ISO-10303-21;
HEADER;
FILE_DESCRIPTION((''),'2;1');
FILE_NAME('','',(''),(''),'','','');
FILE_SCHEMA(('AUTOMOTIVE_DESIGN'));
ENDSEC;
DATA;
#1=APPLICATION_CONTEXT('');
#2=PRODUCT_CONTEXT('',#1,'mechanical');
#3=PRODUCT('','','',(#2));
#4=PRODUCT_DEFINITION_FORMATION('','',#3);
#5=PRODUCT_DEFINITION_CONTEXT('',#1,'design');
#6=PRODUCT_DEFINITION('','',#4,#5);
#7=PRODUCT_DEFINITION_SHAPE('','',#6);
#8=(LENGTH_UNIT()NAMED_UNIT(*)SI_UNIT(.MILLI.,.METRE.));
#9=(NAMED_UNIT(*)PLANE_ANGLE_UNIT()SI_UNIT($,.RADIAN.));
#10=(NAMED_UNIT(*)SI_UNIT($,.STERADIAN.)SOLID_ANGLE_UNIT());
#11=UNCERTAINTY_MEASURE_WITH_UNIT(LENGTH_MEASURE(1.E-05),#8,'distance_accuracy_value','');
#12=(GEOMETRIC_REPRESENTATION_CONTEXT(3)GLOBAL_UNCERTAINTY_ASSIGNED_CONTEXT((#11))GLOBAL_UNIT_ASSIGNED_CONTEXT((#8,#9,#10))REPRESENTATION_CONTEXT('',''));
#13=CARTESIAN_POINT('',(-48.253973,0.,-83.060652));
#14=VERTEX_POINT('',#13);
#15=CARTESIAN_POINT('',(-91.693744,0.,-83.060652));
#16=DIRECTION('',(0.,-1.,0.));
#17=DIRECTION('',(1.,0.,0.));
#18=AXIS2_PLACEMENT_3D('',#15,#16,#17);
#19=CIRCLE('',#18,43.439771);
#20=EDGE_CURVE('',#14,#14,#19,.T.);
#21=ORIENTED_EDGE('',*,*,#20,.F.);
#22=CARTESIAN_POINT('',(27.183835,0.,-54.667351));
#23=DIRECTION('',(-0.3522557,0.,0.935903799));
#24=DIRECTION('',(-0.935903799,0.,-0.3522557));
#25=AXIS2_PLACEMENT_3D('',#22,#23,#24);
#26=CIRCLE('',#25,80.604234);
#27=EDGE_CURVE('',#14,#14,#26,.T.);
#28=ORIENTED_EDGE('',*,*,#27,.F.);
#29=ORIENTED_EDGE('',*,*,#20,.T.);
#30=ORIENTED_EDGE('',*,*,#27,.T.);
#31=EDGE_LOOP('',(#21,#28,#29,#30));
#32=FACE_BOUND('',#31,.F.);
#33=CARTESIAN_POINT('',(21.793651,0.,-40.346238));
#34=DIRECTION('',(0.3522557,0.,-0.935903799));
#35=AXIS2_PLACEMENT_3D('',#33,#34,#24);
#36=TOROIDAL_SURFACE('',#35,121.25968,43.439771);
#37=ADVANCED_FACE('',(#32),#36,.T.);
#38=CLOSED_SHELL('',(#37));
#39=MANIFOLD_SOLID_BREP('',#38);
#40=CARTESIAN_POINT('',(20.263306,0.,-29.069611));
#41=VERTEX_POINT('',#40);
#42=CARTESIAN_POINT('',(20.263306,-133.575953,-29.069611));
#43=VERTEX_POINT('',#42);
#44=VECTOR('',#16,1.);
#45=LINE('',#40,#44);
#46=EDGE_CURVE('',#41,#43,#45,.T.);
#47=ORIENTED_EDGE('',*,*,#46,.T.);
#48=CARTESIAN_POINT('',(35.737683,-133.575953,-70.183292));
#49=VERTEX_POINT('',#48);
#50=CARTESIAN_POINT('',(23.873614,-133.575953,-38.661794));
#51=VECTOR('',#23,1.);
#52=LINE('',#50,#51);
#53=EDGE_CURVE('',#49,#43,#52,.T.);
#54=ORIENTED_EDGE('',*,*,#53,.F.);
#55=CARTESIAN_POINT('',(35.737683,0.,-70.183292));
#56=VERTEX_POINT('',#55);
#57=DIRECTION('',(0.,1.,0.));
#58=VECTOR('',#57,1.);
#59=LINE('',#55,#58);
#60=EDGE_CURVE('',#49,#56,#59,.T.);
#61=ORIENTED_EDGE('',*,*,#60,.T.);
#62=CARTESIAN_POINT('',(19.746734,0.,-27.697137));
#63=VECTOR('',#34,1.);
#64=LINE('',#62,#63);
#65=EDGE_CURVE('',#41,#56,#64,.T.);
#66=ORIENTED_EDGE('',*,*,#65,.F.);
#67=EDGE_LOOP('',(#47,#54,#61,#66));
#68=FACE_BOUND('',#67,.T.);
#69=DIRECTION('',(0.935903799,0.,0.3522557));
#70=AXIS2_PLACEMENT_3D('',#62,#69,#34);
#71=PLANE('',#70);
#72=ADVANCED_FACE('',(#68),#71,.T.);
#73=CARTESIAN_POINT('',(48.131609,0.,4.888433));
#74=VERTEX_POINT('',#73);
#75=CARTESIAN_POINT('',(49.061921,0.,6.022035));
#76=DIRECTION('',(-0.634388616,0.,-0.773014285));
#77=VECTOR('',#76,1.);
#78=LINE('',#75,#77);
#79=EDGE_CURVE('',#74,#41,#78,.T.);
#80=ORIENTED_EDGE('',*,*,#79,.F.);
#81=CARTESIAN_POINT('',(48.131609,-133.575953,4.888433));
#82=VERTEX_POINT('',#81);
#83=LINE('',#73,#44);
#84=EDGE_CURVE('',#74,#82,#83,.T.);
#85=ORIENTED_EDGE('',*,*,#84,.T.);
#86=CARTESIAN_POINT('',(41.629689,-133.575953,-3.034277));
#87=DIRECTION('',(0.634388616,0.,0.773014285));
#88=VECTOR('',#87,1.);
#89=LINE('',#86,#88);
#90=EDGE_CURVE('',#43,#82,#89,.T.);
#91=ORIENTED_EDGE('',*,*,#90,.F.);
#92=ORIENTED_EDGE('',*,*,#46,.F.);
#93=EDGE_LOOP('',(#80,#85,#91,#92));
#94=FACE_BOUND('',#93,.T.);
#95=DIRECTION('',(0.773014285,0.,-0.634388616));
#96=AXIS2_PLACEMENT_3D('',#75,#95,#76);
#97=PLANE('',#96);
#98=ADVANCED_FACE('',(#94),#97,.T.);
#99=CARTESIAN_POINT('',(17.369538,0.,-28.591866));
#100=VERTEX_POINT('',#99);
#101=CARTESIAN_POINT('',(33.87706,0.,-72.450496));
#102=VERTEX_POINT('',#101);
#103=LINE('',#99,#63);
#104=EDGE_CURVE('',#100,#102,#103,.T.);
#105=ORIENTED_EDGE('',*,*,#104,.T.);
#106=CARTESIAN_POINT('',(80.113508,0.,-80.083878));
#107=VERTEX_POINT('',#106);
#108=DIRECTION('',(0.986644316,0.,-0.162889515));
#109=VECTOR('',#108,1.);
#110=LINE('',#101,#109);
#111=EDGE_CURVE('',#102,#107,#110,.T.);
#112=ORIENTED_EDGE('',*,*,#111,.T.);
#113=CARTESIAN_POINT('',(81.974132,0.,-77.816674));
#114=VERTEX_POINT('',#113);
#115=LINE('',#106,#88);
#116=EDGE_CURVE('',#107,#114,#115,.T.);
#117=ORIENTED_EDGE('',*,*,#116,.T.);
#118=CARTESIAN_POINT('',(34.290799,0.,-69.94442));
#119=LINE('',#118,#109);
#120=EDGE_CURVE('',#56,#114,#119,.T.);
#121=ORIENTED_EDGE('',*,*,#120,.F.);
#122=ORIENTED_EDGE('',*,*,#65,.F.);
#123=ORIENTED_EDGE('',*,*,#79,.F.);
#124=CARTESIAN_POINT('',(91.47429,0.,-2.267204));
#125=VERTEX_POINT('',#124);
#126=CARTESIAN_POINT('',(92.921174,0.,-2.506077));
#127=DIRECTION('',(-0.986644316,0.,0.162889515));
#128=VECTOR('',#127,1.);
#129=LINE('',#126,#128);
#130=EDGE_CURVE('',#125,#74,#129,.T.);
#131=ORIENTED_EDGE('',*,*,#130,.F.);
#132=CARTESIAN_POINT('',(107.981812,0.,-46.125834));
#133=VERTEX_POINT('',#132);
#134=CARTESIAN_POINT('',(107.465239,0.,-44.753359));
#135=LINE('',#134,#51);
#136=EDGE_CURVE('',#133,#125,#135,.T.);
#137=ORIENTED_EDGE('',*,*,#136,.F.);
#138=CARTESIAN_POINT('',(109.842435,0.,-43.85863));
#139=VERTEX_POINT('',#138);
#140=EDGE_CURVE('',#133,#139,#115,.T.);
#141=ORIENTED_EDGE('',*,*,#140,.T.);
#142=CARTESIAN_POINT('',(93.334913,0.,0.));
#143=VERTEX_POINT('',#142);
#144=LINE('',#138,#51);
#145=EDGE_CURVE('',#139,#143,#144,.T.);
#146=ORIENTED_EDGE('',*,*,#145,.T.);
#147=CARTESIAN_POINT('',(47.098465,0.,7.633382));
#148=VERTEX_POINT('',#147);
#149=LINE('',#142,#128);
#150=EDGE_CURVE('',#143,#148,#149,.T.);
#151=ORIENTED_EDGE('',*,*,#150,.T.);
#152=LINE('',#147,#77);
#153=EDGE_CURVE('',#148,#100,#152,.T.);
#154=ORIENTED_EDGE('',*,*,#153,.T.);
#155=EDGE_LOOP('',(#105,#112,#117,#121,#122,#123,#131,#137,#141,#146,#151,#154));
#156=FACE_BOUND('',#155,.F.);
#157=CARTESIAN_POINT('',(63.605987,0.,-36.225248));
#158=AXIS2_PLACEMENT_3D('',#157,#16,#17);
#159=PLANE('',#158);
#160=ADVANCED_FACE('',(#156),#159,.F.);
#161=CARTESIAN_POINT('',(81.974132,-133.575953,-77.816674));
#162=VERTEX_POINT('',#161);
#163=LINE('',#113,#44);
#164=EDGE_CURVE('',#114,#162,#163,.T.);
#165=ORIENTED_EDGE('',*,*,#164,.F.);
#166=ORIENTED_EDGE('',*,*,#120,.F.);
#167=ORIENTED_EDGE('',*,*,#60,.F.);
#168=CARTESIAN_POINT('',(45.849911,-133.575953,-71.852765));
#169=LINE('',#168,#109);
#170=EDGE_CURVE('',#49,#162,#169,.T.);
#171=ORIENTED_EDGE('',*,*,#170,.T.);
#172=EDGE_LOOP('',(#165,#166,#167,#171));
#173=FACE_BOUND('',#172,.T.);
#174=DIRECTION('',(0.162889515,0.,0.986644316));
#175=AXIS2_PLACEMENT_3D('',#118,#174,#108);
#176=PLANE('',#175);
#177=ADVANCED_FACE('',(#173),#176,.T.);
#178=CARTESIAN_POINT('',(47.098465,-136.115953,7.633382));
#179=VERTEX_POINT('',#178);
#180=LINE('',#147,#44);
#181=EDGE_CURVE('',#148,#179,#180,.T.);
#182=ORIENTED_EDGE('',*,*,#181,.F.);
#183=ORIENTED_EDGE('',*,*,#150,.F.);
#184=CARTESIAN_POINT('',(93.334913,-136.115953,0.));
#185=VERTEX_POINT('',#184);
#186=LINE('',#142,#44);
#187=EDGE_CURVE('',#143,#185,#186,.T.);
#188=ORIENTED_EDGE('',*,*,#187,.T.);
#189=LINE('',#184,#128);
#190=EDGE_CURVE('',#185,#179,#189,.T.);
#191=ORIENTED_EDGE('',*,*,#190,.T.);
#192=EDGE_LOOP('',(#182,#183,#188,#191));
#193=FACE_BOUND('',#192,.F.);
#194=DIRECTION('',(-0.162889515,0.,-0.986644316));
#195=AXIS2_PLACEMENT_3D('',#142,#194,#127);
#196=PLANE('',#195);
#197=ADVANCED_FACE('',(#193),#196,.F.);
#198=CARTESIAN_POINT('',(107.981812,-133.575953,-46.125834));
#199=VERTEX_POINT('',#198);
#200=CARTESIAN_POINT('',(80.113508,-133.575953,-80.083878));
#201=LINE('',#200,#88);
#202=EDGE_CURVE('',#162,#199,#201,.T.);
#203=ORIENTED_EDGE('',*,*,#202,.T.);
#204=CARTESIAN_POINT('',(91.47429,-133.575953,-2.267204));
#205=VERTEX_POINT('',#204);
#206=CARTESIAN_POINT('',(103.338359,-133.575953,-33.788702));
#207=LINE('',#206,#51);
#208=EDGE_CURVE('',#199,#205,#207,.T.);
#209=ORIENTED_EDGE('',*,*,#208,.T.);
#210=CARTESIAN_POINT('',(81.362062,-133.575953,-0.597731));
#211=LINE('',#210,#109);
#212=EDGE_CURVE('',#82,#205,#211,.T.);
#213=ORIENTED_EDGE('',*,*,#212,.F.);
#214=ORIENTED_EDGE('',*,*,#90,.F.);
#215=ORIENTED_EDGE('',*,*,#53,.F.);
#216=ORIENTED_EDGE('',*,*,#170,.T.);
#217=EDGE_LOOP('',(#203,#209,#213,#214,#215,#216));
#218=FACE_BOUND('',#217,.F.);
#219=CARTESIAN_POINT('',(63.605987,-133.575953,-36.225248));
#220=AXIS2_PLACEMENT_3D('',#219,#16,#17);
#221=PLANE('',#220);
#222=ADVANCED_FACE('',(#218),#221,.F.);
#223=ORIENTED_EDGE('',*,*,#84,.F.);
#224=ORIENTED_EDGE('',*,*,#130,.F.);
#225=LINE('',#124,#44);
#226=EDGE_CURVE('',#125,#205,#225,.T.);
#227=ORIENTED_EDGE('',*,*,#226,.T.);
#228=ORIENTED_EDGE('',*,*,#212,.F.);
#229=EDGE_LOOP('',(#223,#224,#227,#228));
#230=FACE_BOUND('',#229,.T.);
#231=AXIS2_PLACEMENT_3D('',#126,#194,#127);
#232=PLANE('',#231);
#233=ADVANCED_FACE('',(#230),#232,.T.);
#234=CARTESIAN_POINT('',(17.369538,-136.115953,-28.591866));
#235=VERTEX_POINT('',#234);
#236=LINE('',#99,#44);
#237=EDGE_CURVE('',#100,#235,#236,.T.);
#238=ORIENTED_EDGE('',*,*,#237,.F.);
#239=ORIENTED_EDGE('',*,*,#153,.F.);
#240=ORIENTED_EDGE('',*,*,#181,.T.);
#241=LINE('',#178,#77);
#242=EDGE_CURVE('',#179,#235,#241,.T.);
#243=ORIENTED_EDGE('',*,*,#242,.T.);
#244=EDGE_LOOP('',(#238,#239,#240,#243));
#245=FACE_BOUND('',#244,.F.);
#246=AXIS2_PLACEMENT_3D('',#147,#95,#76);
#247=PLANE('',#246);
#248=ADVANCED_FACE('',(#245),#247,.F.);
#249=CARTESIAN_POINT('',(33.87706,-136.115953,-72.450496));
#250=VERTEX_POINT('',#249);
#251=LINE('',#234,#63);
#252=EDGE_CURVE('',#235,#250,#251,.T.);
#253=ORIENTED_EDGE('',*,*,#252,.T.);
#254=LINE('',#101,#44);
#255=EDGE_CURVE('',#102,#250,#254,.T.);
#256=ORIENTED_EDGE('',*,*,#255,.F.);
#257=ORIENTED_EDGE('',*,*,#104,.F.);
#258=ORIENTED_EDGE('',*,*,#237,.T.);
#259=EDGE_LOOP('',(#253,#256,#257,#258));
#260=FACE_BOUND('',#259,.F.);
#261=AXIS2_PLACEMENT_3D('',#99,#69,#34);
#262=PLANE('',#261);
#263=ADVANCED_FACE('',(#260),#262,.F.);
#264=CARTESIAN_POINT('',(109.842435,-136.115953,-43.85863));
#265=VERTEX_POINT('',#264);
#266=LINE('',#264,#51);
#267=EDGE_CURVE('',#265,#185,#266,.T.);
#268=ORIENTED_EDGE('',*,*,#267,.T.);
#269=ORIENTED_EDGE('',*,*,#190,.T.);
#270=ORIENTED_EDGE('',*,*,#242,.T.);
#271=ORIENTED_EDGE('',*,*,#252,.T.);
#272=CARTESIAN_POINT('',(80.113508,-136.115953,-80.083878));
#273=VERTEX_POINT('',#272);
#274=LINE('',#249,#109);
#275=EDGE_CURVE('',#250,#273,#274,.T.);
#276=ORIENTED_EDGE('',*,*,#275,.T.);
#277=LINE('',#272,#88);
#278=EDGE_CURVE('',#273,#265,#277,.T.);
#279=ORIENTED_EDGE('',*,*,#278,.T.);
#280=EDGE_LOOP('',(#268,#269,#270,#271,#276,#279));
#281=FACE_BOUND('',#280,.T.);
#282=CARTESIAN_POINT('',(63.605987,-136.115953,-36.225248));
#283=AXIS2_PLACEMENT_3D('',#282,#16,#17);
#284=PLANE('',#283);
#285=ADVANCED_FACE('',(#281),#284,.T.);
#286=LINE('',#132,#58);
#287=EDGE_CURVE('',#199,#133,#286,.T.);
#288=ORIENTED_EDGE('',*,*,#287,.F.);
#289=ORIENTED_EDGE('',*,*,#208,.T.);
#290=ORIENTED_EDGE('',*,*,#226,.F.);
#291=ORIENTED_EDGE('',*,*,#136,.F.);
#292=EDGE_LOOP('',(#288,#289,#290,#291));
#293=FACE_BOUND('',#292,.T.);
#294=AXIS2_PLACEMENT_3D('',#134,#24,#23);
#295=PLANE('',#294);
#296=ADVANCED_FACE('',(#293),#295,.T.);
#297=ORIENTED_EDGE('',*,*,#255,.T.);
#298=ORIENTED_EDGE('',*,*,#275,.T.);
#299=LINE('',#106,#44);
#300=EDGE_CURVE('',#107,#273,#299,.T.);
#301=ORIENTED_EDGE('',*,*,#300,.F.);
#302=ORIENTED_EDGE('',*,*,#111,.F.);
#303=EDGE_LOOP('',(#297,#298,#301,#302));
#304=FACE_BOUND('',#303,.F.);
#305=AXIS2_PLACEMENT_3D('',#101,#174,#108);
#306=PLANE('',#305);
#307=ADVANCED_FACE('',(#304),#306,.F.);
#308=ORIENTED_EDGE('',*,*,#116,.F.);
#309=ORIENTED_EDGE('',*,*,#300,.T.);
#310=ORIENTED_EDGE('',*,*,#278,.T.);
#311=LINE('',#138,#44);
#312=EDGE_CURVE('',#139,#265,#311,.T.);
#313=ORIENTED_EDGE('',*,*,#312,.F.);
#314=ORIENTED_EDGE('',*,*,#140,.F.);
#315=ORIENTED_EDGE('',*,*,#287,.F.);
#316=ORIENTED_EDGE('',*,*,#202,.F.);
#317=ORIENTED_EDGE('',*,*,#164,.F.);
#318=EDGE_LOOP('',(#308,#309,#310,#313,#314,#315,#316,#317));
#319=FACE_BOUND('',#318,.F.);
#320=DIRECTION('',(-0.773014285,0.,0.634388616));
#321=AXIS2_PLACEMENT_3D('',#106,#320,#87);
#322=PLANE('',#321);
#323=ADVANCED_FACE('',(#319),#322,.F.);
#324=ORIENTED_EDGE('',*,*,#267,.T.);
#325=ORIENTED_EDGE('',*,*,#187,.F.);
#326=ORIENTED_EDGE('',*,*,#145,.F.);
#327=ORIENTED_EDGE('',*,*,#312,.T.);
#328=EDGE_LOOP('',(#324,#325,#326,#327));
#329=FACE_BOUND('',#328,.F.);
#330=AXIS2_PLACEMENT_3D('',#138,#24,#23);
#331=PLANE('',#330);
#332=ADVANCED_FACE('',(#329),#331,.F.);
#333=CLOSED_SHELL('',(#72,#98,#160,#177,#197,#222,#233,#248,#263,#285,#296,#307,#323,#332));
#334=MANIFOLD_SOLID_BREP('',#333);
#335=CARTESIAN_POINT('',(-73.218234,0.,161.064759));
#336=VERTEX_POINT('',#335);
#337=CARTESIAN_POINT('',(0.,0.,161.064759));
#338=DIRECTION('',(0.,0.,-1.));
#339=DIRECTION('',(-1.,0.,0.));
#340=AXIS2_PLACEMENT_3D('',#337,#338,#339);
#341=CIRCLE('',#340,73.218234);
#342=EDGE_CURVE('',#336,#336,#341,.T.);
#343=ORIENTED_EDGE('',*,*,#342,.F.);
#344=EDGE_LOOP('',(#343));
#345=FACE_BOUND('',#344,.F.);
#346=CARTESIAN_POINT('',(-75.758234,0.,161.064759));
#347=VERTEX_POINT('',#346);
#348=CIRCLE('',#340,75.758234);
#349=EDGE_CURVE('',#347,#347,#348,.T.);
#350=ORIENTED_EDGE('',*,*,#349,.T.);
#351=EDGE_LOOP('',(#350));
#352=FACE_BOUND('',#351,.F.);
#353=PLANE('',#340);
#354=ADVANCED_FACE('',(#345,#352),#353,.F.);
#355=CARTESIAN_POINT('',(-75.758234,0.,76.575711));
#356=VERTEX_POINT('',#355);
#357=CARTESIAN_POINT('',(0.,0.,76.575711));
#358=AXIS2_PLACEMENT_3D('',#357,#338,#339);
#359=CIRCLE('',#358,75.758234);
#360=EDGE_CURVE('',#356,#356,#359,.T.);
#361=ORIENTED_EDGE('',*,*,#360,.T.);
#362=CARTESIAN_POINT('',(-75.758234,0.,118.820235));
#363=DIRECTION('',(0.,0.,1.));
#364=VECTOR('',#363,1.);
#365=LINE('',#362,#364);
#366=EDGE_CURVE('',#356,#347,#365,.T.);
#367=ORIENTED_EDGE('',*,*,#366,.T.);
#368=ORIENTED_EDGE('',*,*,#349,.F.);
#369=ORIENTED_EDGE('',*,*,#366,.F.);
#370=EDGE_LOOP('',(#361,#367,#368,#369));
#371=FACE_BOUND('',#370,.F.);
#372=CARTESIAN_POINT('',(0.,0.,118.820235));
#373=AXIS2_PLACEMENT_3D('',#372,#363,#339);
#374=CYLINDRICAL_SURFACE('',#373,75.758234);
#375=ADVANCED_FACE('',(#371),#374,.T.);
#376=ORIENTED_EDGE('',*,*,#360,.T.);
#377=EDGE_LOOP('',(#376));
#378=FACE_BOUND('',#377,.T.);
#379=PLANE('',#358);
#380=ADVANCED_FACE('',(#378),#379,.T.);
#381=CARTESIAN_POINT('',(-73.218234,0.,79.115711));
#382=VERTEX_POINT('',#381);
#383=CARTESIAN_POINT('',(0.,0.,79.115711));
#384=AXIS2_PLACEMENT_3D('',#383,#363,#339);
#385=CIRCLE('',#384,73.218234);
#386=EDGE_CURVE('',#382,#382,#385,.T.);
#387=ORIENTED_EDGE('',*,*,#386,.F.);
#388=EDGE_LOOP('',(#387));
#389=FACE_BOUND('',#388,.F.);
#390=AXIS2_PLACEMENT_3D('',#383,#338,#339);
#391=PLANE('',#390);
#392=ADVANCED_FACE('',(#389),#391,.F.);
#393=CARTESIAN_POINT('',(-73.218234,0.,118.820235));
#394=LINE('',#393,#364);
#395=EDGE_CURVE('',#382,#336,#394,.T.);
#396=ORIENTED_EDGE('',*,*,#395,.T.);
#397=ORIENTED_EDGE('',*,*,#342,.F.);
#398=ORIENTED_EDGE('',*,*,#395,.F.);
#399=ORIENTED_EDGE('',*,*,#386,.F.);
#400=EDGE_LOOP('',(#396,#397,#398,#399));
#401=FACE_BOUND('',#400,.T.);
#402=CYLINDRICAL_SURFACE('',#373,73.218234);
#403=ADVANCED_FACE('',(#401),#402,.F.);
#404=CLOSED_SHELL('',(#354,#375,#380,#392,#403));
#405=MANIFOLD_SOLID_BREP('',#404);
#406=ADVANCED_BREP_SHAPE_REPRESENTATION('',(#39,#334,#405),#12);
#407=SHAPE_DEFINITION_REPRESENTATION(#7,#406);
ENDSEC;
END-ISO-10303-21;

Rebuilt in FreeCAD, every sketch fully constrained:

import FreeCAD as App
import Part
import Sketcher


def faces_at(feature, points):
    """Names of the faces that lie closest to the given points."""
    faces = feature.Shape.Faces
    near = lambda p: min(range(len(faces)), key=lambda i: faces[i].distToShape(Part.Vertex(*p))[0])
    return sorted({f"Face{near(p) + 1}" for p in points})

doc = App.newDocument("Part")
params = doc.addObject("Spreadsheet::Sheet", "Params")
for row, (alias, value) in enumerate([
    ("revolution_angle", "360 deg"),
    ("thickness_wall", "0.1 in"),
    ("pad1_length", "136.115953 mm"),
    ("thickness2_wall", "0.1 in"),
    ("revolution2_angle", "360 deg"),
], start=1):
    params.set(f"A{row}", alias)
    params.set(f"B{row}", "=" + value)
    params.setAlias(f"B{row}", alias)

body = doc.addObject("PartDesign::Body", "Body")

sketch1 = doc.addObject("Sketcher::SketchObject", "Sketch")
body.addObject(sketch1)
sketch1.AttachmentSupport = (doc.XZ_Plane, [""])
sketch1.MapMode = "FlatFace"
sketch1.addGeometry(Part.LineSegment(App.Vector(-76, 161, 0), App.Vector(-76, 77, 0)), False)
sketch1.addGeometry(Part.LineSegment(App.Vector(-76, 77, 0), App.Vector(0, 77, 0)), False)
sketch1.addGeometry(Part.LineSegment(App.Vector(0, 77, 0), App.Vector(0, 161, 0)), False)
sketch1.addGeometry(Part.LineSegment(App.Vector(0, 161, 0), App.Vector(-76, 161, 0)), False)
sketch1.addConstraint(Sketcher.Constraint("Coincident", 0, 2, 1, 1))
sketch1.addConstraint(Sketcher.Constraint("Coincident", 1, 2, 2, 1))
sketch1.addConstraint(Sketcher.Constraint("Coincident", 2, 2, 3, 1))
sketch1.addConstraint(Sketcher.Constraint("Coincident", 3, 2, 0, 1))
sketch1.addConstraint(Sketcher.Constraint("Vertical", 0))
sketch1.addConstraint(Sketcher.Constraint("Horizontal", 1))
sketch1.addConstraint(Sketcher.Constraint("Vertical", 2))
sketch1.addConstraint(Sketcher.Constraint("Horizontal", 3))
sketch1.addConstraint(Sketcher.Constraint("PointOnObject", 1, 2, -2))
sketch1.addConstraint(Sketcher.Constraint("DistanceX", 1, 1, 1, 2, 75.758234))
sketch1.addConstraint(Sketcher.Constraint("DistanceY", 0, 2, 0, 1, 84.489048))
sketch1.addConstraint(Sketcher.Constraint("DistanceY", -1, 1, 0, 2, 76.575711))
revolution = doc.addObject("PartDesign::Revolution", "Revolution")
body.addObject(revolution)
revolution.Profile = sketch1
revolution.ReferenceAxis = (sketch1, ["V_Axis"])
revolution.setExpression("Angle", "Params.revolution_angle")
doc.recompute()

thickness = doc.addObject("PartDesign::Thickness", "Thickness")
body.addObject(thickness)
thickness.Base = (revolution, faces_at(revolution, [(0, 0, 161.065)]))
thickness.setExpression("Value", "Params.thickness_wall")
thickness.Reversed = True
thickness.Join = "Arc"
body2 = doc.addObject("PartDesign::Body", "Body001")

sketch2 = doc.addObject("Sketcher::SketchObject", "Sketch001")
body2.addObject(sketch2)
sketch2.AttachmentSupport = (doc.getObject("XZ_Plane001"), [""])
sketch2.MapMode = "FlatFace"
sketch2.addGeometry(Part.LineSegment(App.Vector(110, -44, 0), App.Vector(93, 0, 0)), False)
sketch2.addGeometry(Part.LineSegment(App.Vector(93, 0, 0), App.Vector(47, 8, 0)), False)
sketch2.addGeometry(Part.LineSegment(App.Vector(47, 8, 0), App.Vector(17, -29, 0)), False)
sketch2.addGeometry(Part.LineSegment(App.Vector(17, -29, 0), App.Vector(34, -72, 0)), False)
sketch2.addGeometry(Part.LineSegment(App.Vector(34, -72, 0), App.Vector(80, -80, 0)), False)
sketch2.addGeometry(Part.LineSegment(App.Vector(80, -80, 0), App.Vector(110, -44, 0)), False)
sketch2.addConstraint(Sketcher.Constraint("Coincident", 0, 2, 1, 1))
sketch2.addConstraint(Sketcher.Constraint("Coincident", 1, 2, 2, 1))
sketch2.addConstraint(Sketcher.Constraint("Coincident", 2, 2, 3, 1))
sketch2.addConstraint(Sketcher.Constraint("Coincident", 3, 2, 4, 1))
sketch2.addConstraint(Sketcher.Constraint("Coincident", 4, 2, 5, 1))
sketch2.addConstraint(Sketcher.Constraint("Coincident", 5, 2, 0, 1))
sketch2.addConstraint(Sketcher.Constraint("PointOnObject", 0, 2, -1))
sketch2.addConstraint(Sketcher.Constraint("Parallel", 0, 3))
sketch2.addConstraint(Sketcher.Constraint("Parallel", 1, 4))
sketch2.addConstraint(Sketcher.Constraint("Parallel", 2, 5))
sketch2.addConstraint(Sketcher.Constraint("Equal", 0, 1))
sketch2.addConstraint(Sketcher.Constraint("Equal", 1, 2))
sketch2.addConstraint(Sketcher.Constraint("Equal", 2, 3))
sketch2.addConstraint(Sketcher.Constraint("DistanceY", -1, 1, 1, 2, 7.633382))
sketch2.addConstraint(Sketcher.Constraint("DistanceX", -1, 1, 2, 2, 17.369538))
sketch2.addConstraint(Sketcher.Constraint("DistanceX", -1, 1, 3, 2, 33.87706))
sketch2.addConstraint(Sketcher.Constraint("DistanceX", -1, 1, 4, 2, 80.113508))
sketch2.addConstraint(Sketcher.Constraint("DistanceY", 2, 2, 1, 2, 36.225248))
pad1 = doc.addObject("PartDesign::Pad", "Pad")
body2.addObject(pad1)
pad1.Profile = sketch2
pad1.setExpression("Length", "Params.pad1_length")
doc.recompute()

thickness2 = doc.addObject("PartDesign::Thickness", "Thickness001")
body2.addObject(thickness2)
thickness2.Base = (pad1, faces_at(pad1, [(63.606, 0, -36.225), (94.978, -68.058, -61.971)]))
thickness2.setExpression("Value", "Params.thickness2_wall")
thickness2.Reversed = True
thickness2.Join = "Arc"
body3 = doc.addObject("PartDesign::Body", "Body002")

sketch3 = doc.addObject("Sketcher::SketchObject", "Sketch002")
body3.addObject(sketch3)
sketch3.AttachmentSupport = (doc.getObject("XZ_Plane002"), [""])
sketch3.MapMode = "FlatFace"
sketch3.addGeometry(Part.Circle(App.Vector(-92, -83, 0), App.Vector(0, 0, 1), 43), False)
sketch3.addGeometry(Part.LineSegment(App.Vector(22, -40, 0), App.Vector(18, -31, 0)), True)
sketch3.addConstraint(Sketcher.Constraint("Diameter", 0, 86.879542))
sketch3.addConstraint(Sketcher.Constraint("Distance", 1, 10.0))
sketch3.addConstraint(Sketcher.Constraint("DistanceY", 1, 2, -1, 1, 30.9872))
sketch3.addConstraint(Sketcher.Constraint("DistanceX", -1, 1, 1, 1, 21.793651))
sketch3.addConstraint(Sketcher.Constraint("DistanceY", 1, 1, -1, 1, 40.346238))
sketch3.addConstraint(Sketcher.Constraint("DistanceX", 0, 3, 1, 2, 109.964839))
sketch3.addConstraint(Sketcher.Constraint("DistanceY", 0, 3, 1, 2, 52.073452))
revolution2 = doc.addObject("PartDesign::Revolution", "Revolution001")
body3.addObject(revolution2)
revolution2.Profile = sketch3
revolution2.ReferenceAxis = (sketch3, ["Axis0"])
revolution2.setExpression("Angle", "Params.revolution2_angle")

doc.recompute()
